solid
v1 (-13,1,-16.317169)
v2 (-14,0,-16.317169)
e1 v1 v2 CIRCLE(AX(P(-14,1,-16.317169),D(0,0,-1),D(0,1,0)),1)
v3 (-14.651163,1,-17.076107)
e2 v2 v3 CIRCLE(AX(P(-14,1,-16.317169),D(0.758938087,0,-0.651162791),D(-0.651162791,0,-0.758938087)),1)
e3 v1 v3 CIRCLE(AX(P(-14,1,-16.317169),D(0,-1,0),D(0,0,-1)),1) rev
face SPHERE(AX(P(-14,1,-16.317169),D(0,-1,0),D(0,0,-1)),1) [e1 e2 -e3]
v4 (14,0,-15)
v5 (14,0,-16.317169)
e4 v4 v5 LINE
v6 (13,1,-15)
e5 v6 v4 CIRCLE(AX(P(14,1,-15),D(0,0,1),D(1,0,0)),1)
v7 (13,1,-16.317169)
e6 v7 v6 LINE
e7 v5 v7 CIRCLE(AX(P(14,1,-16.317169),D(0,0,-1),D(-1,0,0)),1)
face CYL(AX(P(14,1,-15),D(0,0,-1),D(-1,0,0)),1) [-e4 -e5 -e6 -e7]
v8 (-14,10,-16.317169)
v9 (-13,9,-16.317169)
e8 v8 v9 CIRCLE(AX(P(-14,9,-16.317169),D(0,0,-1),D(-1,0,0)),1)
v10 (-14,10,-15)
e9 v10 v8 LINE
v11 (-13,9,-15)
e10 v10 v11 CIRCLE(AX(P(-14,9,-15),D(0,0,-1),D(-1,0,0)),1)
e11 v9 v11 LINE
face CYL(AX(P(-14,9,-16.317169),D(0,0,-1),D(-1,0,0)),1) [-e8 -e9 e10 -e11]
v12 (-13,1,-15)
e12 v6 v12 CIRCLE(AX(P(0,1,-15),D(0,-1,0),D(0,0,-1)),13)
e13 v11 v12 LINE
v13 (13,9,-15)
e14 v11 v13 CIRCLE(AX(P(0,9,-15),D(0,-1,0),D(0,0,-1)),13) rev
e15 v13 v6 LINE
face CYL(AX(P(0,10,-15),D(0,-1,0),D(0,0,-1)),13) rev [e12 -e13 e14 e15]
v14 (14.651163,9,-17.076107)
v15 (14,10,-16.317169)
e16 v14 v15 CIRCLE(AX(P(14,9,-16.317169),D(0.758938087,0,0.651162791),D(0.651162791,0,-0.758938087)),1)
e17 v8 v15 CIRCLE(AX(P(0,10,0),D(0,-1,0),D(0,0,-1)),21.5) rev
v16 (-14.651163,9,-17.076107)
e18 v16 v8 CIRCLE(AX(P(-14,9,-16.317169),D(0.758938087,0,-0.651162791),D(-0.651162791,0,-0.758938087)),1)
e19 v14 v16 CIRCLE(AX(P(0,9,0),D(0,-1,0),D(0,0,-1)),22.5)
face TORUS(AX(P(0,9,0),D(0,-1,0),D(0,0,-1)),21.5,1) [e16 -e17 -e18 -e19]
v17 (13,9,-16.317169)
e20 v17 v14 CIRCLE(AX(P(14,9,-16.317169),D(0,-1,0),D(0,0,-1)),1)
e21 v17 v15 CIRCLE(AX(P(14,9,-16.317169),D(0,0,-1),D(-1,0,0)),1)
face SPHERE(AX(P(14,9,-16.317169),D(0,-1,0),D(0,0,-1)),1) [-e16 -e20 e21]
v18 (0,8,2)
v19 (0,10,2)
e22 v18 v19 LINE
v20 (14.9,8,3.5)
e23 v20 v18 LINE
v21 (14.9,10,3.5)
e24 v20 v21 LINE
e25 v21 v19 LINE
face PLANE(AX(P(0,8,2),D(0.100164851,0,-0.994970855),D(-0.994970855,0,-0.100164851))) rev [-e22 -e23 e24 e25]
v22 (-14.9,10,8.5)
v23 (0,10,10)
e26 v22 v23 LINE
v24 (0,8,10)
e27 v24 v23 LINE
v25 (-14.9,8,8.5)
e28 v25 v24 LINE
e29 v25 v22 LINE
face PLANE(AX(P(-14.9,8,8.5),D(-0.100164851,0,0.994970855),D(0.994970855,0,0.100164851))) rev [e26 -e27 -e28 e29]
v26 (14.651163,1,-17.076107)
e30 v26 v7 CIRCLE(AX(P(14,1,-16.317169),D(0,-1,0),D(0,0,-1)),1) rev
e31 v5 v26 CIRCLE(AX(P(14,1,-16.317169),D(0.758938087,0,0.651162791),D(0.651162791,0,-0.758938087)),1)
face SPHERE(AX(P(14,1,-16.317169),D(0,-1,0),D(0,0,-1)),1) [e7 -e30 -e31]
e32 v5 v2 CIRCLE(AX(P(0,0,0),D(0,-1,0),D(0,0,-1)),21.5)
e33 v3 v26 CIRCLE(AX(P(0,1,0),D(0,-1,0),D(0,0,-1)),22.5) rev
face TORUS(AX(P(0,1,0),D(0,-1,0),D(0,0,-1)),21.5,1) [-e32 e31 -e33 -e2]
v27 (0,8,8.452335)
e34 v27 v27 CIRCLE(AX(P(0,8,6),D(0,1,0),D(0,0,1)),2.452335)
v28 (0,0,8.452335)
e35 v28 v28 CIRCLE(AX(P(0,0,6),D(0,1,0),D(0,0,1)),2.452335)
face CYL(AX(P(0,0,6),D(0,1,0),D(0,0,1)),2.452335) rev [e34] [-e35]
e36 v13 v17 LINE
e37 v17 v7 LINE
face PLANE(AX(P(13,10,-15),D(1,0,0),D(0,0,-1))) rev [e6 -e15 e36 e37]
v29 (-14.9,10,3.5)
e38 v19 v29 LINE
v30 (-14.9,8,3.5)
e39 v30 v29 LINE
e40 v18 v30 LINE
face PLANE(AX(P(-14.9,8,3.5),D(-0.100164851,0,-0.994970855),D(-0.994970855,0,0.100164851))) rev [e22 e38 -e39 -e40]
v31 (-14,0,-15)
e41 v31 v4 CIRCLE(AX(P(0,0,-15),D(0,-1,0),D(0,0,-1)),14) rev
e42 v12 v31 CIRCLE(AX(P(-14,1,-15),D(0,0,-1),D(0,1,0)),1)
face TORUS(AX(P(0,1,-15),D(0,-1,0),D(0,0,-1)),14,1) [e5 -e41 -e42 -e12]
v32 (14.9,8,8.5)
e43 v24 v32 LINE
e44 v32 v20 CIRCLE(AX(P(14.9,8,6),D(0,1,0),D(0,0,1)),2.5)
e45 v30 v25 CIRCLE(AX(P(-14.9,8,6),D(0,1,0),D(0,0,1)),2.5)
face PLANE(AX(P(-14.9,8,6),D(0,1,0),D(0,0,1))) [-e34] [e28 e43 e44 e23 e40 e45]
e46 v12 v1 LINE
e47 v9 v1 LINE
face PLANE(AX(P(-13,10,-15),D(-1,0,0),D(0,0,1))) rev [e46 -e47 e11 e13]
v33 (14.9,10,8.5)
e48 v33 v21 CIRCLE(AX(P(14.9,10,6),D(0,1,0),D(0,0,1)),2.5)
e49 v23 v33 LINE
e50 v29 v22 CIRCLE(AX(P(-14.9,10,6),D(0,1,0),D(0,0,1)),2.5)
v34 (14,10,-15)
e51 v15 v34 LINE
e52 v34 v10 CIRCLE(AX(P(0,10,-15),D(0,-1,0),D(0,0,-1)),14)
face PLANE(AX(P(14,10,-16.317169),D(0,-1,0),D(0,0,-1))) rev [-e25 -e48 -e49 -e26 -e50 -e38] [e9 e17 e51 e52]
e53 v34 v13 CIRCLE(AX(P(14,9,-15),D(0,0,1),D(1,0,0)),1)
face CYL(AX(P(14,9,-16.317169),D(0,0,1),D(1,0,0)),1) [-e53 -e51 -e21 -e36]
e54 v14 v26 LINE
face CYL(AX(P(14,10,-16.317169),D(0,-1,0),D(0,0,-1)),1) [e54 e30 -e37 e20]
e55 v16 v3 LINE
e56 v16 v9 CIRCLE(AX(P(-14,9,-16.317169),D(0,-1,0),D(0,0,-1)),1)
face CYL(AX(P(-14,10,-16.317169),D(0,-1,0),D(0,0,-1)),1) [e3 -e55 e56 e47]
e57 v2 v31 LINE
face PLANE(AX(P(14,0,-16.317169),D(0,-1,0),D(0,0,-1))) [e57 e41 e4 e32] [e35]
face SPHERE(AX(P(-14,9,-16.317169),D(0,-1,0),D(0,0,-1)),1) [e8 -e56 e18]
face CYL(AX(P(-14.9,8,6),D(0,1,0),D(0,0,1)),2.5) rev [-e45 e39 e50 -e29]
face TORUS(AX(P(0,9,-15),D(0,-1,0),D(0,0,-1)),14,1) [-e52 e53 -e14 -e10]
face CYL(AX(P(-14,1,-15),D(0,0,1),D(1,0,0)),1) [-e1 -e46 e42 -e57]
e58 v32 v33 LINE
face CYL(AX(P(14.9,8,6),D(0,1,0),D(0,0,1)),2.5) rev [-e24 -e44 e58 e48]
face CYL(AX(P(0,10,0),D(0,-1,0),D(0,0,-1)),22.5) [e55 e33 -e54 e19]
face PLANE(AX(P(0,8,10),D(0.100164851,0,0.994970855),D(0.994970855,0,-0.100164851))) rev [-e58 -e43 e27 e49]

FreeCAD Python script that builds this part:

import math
import FreeCAD as App
import Part
import Sketcher


def edges_at(feature, points):
    """Names of the edges that pass closest to the given points."""
    edges = feature.Shape.Edges
    near = lambda p: min(range(len(edges)), key=lambda i: edges[i].distToShape(Part.Vertex(*p))[0])
    return sorted({f"Edge{near(p) + 1}" for p in points})

doc = App.newDocument("Part")
body = doc.addObject("PartDesign::Body", "Body")

# Sketch on XZ plane
sketch1 = doc.addObject("Sketcher::SketchObject", "Sketch")
body.addObject(sketch1)
sketch1.AttachmentSupport = (doc.XZ_Plane, [""])
sketch1.MapMode = "FlatFace"
sketch1.addGeometry([
    Part.LineSegment(App.Vector(-13, -15, 0), App.Vector(-13, -16.3, 0)),  # 0
    Part.ArcOfCircle(Part.Circle(App.Vector(-14, -16.3, 0), App.Vector(0, 0, 1), 1), math.radians(-131), math.radians(0)),  # 1
    Part.ArcOfCircle(Part.Circle(App.Vector(0, 0, 0), App.Vector(0, 0, 1), 22.5), math.radians(-49), math.radians(229)),  # 2
    Part.ArcOfCircle(Part.Circle(App.Vector(14, -16.3, 0), App.Vector(0, 0, 1), 1), math.radians(180), math.radians(311)),  # 3
    Part.LineSegment(App.Vector(13, -16.3, 0), App.Vector(13, -15, 0)),  # 4
    Part.ArcOfCircle(Part.Circle(App.Vector(0, -15, 0), App.Vector(0, 0, 1), 13), math.radians(0), math.radians(180)),  # 5
], False)
sketch1.addConstraint([
    Sketcher.Constraint("Tangent", 0, 2, 1, 2),
    Sketcher.Constraint("Tangent", 1, 1, 2, 2),
    Sketcher.Constraint("Tangent", 2, 1, 3, 2),
    Sketcher.Constraint("Tangent", 3, 1, 4, 1),
    Sketcher.Constraint("Tangent", 4, 2, 5, 1),
    Sketcher.Constraint("Tangent", 5, 2, 0, 1),
    Sketcher.Constraint("Vertical", 0),
    Sketcher.Constraint("Vertical", 4),
    Sketcher.Constraint("Coincident", 2, 3, -1, 1),
    Sketcher.Constraint("Equal", 1, 3),
    Sketcher.Constraint("PointOnObject", 5, 3, -2),
    Sketcher.Constraint("Radius", 1, 1.0),
    Sketcher.Constraint("Radius", 5, 13.0),
    Sketcher.Constraint("Radius", 2, 22.5),
    Sketcher.Constraint("DistanceY", 5, 3, -1, 1, 15.0),
])
pad1 = doc.addObject("PartDesign::Pad", "Pad")
body.addObject(pad1)
pad1.Profile = sketch1
pad1.Length = 10
pad1.Reversed = True

# Sketch on XZ plane
sketch2 = doc.addObject("Sketcher::SketchObject", "Sketch001")
body.addObject(sketch2)
sketch2.AttachmentSupport = (doc.XZ_Plane, [""])
sketch2.MapMode = "FlatFace"
sketch2.AttachmentOffset = App.Placement(App.Vector(0, 0, -10), App.Rotation())
sketch2.addGeometry([
    Part.LineSegment(App.Vector(0, 2, 0), App.Vector(-14.9, 3.5, 0)),  # 0
    Part.ArcOfCircle(Part.Circle(App.Vector(-14.9, 6, 0), App.Vector(0, 0, 1), 2.5), math.radians(90), math.radians(270)),  # 1
    Part.LineSegment(App.Vector(-14.9, 8.5, 0), App.Vector(0, 10, 0)),  # 2
    Part.LineSegment(App.Vector(0, 10, 0), App.Vector(14.9, 8.5, 0)),  # 3
    Part.ArcOfCircle(Part.Circle(App.Vector(14.9, 6, 0), App.Vector(0, 0, 1), 2.5), math.radians(-90), math.radians(90)),  # 4
    Part.LineSegment(App.Vector(14.9, 3.5, 0), App.Vector(0, 2, 0)),  # 5
    Part.Circle(App.Vector(0, 6, 0), App.Vector(0, 0, 1), 2.5),  # 6
], False)
sketch2.addConstraint([
    Sketcher.Constraint("Coincident", 0, 2, 1, 2),
    Sketcher.Constraint("Coincident", 1, 1, 2, 1),
    Sketcher.Constraint("Coincident", 2, 2, 3, 1),
    Sketcher.Constraint("Coincident", 3, 2, 4, 2),
    Sketcher.Constraint("Coincident", 4, 1, 5, 1),
    Sketcher.Constraint("Coincident", 5, 2, 0, 1),
    Sketcher.Constraint("Equal", 1, 4),
    Sketcher.Constraint("Symmetric", 1, 3, 4, 3, -2),
    Sketcher.Constraint("PointOnObject", 6, 3, -2),
    Sketcher.Constraint("PointOnObject", 2, 2, -2),
    Sketcher.Constraint("PointOnObject", 5, 2, -2),
    Sketcher.Constraint("Parallel", 0, 3),
    Sketcher.Constraint("Parallel", 2, 5),
    Sketcher.Constraint("Horizontal", 4, 3, 6, 3),
    Sketcher.Constraint("Vertical", 1, 3, 0, 2),
    Sketcher.Constraint("Vertical", 0, 2, 1, 1),
    Sketcher.Constraint("Vertical", 4, 3, 3, 2),
    Sketcher.Constraint("Radius", 1, 2.5),
    Sketcher.Constraint("DistanceY", -1, 1, 1, 3, 6.0),
    Sketcher.Constraint("DistanceY", -1, 1, 2, 2, 10.0),
    Sketcher.Constraint("DistanceX", 1, 3, -1, 1, 14.9),
    Sketcher.Constraint("Diameter", 6, 4.90467),
])
pocket1 = doc.addObject("PartDesign::Pocket", "Pocket")
body.addObject(pocket1)
pocket1.Profile = sketch2
pocket1.Length = 2
pocket1.Reversed = True

# Sketch on XZ plane
sketch3 = doc.addObject("Sketcher::SketchObject", "Sketch002")
body.addObject(sketch3)
sketch3.AttachmentSupport = (doc.XZ_Plane, [""])
sketch3.MapMode = "FlatFace"
sketch3.AttachmentOffset = App.Placement(App.Vector(0, 0, -10), App.Rotation())
sketch3.addGeometry(Part.Circle(App.Vector(0, 6, 0), App.Vector(0, 0, 1), 2.5), False)
sketch3.addConstraint([
    Sketcher.Constraint("PointOnObject", 0, 3, -2),
    Sketcher.Constraint("DistanceY", -1, 1, 0, 3, 6.0),
    Sketcher.Constraint("Diameter", 0, 4.90467),
])
pocket2 = doc.addObject("PartDesign::Pocket", "Pocket001")
body.addObject(pocket2)
pocket2.Profile = sketch3
pocket2.Type = "ThroughAll"
pocket2.Reversed = True
doc.recompute()

fillet = doc.addObject("PartDesign::Fillet", "Fillet")
body.addObject(fillet)
fillet.Base = (pocket2, edges_at(pocket2, [
    (0, 10, -2),
    (-13, 10, -15.659),
    (-13.582, 10, -17.226),
    (0, 10, 22.5),
    (13.582, 10, -17.226),
    (0, 0, 22.5),
    (-13.582, 0, -17.226),
    (-13, 0, -15.659),
    (0, 0, -2),
    (13, 0, -15.659),
    (13.582, 0, -17.226),
    (13, 10, -15.659),
]))
fillet.Radius = 1

doc.recompute()
